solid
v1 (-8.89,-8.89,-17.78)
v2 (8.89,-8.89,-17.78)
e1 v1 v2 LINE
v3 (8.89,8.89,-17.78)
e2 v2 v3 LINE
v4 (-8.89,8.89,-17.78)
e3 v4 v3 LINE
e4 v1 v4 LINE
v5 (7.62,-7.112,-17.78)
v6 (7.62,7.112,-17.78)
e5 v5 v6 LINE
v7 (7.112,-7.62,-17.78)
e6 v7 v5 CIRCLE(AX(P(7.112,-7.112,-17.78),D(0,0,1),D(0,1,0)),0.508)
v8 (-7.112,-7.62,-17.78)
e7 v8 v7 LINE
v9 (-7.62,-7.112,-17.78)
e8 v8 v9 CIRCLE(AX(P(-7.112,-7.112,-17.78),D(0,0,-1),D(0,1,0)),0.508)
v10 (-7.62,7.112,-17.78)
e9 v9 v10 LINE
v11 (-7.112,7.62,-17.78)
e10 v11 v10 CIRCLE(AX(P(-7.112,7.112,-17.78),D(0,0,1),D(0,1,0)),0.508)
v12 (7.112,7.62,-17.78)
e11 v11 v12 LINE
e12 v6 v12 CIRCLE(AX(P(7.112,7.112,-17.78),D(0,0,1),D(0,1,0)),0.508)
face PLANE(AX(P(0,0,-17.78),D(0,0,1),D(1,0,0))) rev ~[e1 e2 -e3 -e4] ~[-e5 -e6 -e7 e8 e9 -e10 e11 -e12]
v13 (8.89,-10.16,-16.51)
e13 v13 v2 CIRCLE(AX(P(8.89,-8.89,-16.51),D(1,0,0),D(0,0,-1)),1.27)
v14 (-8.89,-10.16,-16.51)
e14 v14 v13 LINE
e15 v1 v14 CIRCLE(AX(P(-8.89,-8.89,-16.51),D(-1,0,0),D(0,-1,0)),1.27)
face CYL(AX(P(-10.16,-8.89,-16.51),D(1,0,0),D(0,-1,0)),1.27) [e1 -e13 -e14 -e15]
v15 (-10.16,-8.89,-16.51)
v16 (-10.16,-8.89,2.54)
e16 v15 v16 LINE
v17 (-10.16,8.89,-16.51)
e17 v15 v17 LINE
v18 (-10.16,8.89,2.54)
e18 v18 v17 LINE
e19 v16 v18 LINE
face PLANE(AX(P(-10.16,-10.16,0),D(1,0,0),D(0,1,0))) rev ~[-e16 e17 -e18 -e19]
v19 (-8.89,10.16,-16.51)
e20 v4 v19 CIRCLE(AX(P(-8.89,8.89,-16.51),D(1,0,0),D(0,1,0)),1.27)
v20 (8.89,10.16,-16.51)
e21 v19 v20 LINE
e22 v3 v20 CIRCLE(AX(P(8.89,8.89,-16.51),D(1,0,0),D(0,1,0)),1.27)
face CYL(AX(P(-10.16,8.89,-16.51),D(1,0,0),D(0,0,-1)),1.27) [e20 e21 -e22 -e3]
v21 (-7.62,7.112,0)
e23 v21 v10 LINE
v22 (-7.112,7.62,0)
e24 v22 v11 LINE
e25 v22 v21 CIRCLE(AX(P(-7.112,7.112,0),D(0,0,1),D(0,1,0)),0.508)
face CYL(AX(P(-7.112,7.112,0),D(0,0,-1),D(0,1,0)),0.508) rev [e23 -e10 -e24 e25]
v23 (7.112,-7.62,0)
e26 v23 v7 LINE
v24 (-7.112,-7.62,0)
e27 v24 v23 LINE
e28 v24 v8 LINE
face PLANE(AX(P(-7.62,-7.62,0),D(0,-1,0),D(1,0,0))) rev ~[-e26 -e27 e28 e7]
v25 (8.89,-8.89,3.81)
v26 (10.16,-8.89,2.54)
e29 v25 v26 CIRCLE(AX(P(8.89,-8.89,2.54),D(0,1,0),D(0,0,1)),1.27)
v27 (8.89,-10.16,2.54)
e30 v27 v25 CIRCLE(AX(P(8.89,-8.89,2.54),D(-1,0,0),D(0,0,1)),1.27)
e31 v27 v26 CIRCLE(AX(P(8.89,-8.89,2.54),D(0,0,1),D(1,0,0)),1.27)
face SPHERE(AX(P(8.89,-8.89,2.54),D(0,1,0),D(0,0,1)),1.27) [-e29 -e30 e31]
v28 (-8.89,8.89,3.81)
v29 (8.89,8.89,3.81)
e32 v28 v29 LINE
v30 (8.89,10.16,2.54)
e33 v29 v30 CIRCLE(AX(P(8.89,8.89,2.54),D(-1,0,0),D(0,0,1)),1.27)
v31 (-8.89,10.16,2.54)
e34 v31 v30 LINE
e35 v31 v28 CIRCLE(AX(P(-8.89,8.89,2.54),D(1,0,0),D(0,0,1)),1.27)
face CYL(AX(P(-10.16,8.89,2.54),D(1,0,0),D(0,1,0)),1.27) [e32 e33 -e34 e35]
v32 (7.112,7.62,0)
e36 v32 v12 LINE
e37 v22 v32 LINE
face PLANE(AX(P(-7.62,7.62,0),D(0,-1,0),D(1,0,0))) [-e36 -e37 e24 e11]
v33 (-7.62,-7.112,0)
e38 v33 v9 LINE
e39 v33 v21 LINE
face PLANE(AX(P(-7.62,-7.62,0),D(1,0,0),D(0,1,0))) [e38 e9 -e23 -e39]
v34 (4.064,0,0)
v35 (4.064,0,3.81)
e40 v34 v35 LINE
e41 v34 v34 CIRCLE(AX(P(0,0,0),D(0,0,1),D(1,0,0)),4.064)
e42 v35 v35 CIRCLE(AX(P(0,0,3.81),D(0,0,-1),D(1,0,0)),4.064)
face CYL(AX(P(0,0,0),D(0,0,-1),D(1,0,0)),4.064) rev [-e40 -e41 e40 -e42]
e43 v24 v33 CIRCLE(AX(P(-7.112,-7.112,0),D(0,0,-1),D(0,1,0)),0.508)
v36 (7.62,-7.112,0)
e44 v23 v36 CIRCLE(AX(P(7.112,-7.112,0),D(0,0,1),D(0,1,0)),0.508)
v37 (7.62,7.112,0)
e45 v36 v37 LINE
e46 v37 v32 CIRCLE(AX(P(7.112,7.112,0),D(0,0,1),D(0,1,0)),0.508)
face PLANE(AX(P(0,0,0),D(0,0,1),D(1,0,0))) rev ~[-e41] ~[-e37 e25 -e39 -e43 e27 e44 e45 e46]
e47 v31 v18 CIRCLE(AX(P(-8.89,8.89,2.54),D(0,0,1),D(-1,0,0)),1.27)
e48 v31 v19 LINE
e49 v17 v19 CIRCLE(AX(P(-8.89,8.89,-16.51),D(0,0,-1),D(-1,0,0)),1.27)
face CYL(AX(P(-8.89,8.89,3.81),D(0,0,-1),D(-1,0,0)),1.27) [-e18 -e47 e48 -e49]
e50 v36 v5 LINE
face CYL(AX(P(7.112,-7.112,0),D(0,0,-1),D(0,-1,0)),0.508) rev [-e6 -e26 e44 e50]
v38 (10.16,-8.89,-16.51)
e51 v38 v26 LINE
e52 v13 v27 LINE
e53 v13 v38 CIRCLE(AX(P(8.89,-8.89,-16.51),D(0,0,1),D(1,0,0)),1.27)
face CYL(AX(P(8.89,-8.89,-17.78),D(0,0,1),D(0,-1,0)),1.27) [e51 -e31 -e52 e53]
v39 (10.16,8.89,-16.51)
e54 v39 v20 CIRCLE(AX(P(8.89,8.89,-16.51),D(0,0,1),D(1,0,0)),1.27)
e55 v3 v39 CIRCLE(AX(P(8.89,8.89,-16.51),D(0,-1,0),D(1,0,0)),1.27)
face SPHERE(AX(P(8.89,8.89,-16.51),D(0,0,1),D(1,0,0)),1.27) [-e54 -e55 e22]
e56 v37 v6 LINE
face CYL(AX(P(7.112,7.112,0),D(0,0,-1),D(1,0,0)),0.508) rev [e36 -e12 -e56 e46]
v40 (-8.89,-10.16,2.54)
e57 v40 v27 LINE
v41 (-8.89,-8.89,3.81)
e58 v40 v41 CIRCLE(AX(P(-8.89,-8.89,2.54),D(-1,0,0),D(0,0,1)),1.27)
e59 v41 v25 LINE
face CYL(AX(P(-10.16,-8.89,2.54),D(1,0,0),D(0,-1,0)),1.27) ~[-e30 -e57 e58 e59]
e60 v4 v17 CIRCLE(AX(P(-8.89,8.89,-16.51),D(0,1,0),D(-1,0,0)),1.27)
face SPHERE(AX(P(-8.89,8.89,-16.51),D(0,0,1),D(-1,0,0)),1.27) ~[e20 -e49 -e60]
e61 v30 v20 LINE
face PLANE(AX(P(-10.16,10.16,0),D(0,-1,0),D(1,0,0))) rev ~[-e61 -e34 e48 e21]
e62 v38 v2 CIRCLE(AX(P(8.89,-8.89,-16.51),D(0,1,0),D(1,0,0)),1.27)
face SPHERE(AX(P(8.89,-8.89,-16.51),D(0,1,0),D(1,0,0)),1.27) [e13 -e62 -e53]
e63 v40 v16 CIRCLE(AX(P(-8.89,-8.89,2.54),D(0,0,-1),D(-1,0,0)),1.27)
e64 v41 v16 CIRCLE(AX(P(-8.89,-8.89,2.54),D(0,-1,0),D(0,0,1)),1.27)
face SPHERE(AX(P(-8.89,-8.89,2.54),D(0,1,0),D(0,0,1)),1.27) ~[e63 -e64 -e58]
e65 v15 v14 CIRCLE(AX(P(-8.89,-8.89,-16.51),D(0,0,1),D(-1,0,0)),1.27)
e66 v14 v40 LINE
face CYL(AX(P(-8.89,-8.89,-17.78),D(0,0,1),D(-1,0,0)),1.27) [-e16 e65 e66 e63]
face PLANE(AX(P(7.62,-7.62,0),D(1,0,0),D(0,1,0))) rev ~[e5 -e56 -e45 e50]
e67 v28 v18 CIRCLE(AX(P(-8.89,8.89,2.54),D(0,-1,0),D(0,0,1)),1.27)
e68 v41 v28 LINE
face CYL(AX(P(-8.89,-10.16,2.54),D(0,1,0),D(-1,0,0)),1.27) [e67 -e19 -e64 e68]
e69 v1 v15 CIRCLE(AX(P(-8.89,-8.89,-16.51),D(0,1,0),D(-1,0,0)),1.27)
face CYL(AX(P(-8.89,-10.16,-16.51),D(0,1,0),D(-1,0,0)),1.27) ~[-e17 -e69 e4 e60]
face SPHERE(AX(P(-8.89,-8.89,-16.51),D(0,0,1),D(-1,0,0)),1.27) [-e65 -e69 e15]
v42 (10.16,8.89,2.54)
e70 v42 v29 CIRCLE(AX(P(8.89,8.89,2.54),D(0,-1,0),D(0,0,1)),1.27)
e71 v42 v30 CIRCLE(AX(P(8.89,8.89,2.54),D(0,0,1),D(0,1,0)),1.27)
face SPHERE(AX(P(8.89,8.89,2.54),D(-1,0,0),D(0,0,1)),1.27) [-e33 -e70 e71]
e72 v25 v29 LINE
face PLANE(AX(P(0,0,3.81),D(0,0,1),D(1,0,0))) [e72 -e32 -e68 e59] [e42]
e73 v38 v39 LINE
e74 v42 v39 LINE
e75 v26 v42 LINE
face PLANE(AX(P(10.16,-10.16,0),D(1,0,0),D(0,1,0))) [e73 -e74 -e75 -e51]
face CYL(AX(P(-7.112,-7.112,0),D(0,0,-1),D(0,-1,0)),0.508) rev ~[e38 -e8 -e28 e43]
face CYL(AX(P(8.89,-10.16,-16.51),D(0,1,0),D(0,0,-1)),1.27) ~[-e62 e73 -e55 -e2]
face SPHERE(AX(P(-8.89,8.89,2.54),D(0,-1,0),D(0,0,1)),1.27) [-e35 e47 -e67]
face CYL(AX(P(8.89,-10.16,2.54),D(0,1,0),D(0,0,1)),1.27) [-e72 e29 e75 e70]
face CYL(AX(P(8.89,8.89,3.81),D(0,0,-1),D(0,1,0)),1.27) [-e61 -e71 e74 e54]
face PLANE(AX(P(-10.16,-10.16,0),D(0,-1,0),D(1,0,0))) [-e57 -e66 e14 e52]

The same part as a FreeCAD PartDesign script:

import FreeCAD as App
import Part
import Sketcher

V = App.Vector
Q = App.Units.Quantity


def edges_at(feature, points):
    """Names of the edges that pass closest to the given points."""
    edges = feature.Shape.Edges
    near = lambda p: min(range(len(edges)), key=lambda i: edges[i].distToShape(Part.Vertex(*p))[0])
    return sorted({f"Edge{near(p) + 1}" for p in points})

doc = App.newDocument("Part")
body = doc.addObject("PartDesign::Body", "Body")

# Sketch on XY plane
sketch1 = doc.addObject("Sketcher::SketchObject", "Sketch")
body.addObject(sketch1)
sketch1.AttachmentSupport = (doc.XY_Plane, [""])
sketch1.MapMode = "FlatFace"
sketch1.addGeometry([
    Part.LineSegment(V(-10, 10, 0), V(-10, -10, 0)),
    Part.LineSegment(V(-10, -10, 0), V(10, -10, 0)),
    Part.LineSegment(V(10, -10, 0), V(10, 10, 0)),
    Part.LineSegment(V(10, 10, 0), V(-10, 10, 0)),
], False)
sketch1.addConstraint([
    Sketcher.Constraint("Coincident", 0, 2, 1, 1),
    Sketcher.Constraint("Coincident", 1, 2, 2, 1),
    Sketcher.Constraint("Coincident", 2, 2, 3, 1),
    Sketcher.Constraint("Coincident", 3, 2, 0, 1),
    Sketcher.Constraint("Vertical", 0),
    Sketcher.Constraint("Horizontal", 1),
    Sketcher.Constraint("Vertical", 2),
    Sketcher.Constraint("Horizontal", 3),
    Sketcher.Constraint("Symmetric", 0, 2, 2, 2, -1, 1),
    Sketcher.Constraint("Equal", 3, 0),
    Sketcher.Constraint("DistanceX", 1, 1, 1, 2, Q("0.8 in")),
])
pad1 = doc.addObject("PartDesign::Pad", "Pad")
body.addObject(pad1)
pad1.Profile = sketch1
pad1.Length = Q("0.15 in")

# Sketch on XY plane
sketch2 = doc.addObject("Sketcher::SketchObject", "Sketch001")
body.addObject(sketch2)
sketch2.AttachmentSupport = (doc.XY_Plane, [""])
sketch2.MapMode = "FlatFace"
sketch2.addGeometry([
    Part.LineSegment(V(-10, 10, 0), V(-10, -10, 0)),  # 0
    Part.LineSegment(V(-10, -10, 0), V(10, -10, 0)),  # 1
    Part.LineSegment(V(10, -10, 0), V(10, 10, 0)),  # 2
    Part.LineSegment(V(10, 10, 0), V(-10, 10, 0)),  # 3
    Part.LineSegment(V(8, -8, 0), V(-8, -8, 0)),  # 4
    Part.LineSegment(V(-8, -8, 0), V(-8, 8, 0)),  # 5
    Part.LineSegment(V(-8, 8, 0), V(8, 8, 0)),  # 6
    Part.LineSegment(V(8, 8, 0), V(8, -8, 0)),  # 7
], False)
sketch2.addConstraint([
    Sketcher.Constraint("Coincident", 0, 2, 1, 1),
    Sketcher.Constraint("Coincident", 1, 2, 2, 1),
    Sketcher.Constraint("Coincident", 2, 2, 3, 1),
    Sketcher.Constraint("Coincident", 3, 2, 0, 1),
    Sketcher.Constraint("Coincident", 4, 2, 5, 1),
    Sketcher.Constraint("Coincident", 5, 2, 6, 1),
    Sketcher.Constraint("Coincident", 6, 2, 7, 1),
    Sketcher.Constraint("Coincident", 7, 2, 4, 1),
    Sketcher.Constraint("Vertical", 0),
    Sketcher.Constraint("Horizontal", 1),
    Sketcher.Constraint("Vertical", 2),
    Sketcher.Constraint("Horizontal", 3),
    Sketcher.Constraint("Horizontal", 4),
    Sketcher.Constraint("Vertical", 5),
    Sketcher.Constraint("Horizontal", 6),
    Sketcher.Constraint("Vertical", 7),
    Sketcher.Constraint("Symmetric", 0, 2, 2, 2, -1, 1),
    Sketcher.Constraint("Symmetric", 4, 2, 6, 2, -1, 1),
    Sketcher.Constraint("Equal", 3, 0),
    Sketcher.Constraint("Equal", 6, 5),
    Sketcher.Constraint("DistanceX", 1, 1, 1, 2, Q("0.8 in")),
    Sketcher.Constraint("DistanceX", 4, 2, 4, 1, Q("0.6 in")),
])
pad2 = doc.addObject("PartDesign::Pad", "Pad001")
body.addObject(pad2)
pad2.Profile = sketch2
pad2.Length = Q("0.7 in")
pad2.Reversed = True

# Sketch on XY plane
sketch3 = doc.addObject("Sketcher::SketchObject", "Sketch002")
body.addObject(sketch3)
sketch3.AttachmentSupport = (doc.XY_Plane, [""])
sketch3.MapMode = "FlatFace"
sketch3.addGeometry(Part.Circle(V(0, 0, 0), V(0, 0, 1), 4.1), False)
sketch3.addConstraint([
    Sketcher.Constraint("Coincident", 0, 3, -1, 1),
    Sketcher.Constraint("Diameter", 0, Q("0.32 in")),
])
pocket1 = doc.addObject("PartDesign::Pocket", "Pocket")
body.addObject(pocket1)
pocket1.Profile = sketch3
pocket1.Length = Q("1 in")
pocket1.Reversed = True
doc.recompute()

fillet = doc.addObject("PartDesign::Fillet", "Fillet")
body.addObject(fillet)
fillet.Base = (pocket1, edges_at(pocket1, [
    (-10.16, 0, 3.81),
    (0, 10.16, 3.81),
    (10.16, 0, 3.81),
    (0, -10.16, 3.81),
    (-10.16, 10.16, -6.985),
    (-10.16, -10.16, -6.985),
    (-10.16, 0, -17.78),
    (10.16, 10.16, -6.985),
    (10.16, 0, -17.78),
    (10.16, -10.16, -6.985),
    (0, -10.16, -17.78),
    (0, 10.16, -17.78),
]))
fillet.Radius = Q("0.05 in")
doc.recompute()

fillet2 = doc.addObject("PartDesign::Fillet", "Fillet001")
body.addObject(fillet2)
fillet2.Base = (fillet, edges_at(fillet, [
    (-7.62, -7.62, -8.89),
    (7.62, -7.62, -8.89),
    (7.62, 7.62, -8.89),
    (-7.62, 7.62, -8.89),
]))
fillet2.Radius = Q("0.02 in")

doc.recompute()
